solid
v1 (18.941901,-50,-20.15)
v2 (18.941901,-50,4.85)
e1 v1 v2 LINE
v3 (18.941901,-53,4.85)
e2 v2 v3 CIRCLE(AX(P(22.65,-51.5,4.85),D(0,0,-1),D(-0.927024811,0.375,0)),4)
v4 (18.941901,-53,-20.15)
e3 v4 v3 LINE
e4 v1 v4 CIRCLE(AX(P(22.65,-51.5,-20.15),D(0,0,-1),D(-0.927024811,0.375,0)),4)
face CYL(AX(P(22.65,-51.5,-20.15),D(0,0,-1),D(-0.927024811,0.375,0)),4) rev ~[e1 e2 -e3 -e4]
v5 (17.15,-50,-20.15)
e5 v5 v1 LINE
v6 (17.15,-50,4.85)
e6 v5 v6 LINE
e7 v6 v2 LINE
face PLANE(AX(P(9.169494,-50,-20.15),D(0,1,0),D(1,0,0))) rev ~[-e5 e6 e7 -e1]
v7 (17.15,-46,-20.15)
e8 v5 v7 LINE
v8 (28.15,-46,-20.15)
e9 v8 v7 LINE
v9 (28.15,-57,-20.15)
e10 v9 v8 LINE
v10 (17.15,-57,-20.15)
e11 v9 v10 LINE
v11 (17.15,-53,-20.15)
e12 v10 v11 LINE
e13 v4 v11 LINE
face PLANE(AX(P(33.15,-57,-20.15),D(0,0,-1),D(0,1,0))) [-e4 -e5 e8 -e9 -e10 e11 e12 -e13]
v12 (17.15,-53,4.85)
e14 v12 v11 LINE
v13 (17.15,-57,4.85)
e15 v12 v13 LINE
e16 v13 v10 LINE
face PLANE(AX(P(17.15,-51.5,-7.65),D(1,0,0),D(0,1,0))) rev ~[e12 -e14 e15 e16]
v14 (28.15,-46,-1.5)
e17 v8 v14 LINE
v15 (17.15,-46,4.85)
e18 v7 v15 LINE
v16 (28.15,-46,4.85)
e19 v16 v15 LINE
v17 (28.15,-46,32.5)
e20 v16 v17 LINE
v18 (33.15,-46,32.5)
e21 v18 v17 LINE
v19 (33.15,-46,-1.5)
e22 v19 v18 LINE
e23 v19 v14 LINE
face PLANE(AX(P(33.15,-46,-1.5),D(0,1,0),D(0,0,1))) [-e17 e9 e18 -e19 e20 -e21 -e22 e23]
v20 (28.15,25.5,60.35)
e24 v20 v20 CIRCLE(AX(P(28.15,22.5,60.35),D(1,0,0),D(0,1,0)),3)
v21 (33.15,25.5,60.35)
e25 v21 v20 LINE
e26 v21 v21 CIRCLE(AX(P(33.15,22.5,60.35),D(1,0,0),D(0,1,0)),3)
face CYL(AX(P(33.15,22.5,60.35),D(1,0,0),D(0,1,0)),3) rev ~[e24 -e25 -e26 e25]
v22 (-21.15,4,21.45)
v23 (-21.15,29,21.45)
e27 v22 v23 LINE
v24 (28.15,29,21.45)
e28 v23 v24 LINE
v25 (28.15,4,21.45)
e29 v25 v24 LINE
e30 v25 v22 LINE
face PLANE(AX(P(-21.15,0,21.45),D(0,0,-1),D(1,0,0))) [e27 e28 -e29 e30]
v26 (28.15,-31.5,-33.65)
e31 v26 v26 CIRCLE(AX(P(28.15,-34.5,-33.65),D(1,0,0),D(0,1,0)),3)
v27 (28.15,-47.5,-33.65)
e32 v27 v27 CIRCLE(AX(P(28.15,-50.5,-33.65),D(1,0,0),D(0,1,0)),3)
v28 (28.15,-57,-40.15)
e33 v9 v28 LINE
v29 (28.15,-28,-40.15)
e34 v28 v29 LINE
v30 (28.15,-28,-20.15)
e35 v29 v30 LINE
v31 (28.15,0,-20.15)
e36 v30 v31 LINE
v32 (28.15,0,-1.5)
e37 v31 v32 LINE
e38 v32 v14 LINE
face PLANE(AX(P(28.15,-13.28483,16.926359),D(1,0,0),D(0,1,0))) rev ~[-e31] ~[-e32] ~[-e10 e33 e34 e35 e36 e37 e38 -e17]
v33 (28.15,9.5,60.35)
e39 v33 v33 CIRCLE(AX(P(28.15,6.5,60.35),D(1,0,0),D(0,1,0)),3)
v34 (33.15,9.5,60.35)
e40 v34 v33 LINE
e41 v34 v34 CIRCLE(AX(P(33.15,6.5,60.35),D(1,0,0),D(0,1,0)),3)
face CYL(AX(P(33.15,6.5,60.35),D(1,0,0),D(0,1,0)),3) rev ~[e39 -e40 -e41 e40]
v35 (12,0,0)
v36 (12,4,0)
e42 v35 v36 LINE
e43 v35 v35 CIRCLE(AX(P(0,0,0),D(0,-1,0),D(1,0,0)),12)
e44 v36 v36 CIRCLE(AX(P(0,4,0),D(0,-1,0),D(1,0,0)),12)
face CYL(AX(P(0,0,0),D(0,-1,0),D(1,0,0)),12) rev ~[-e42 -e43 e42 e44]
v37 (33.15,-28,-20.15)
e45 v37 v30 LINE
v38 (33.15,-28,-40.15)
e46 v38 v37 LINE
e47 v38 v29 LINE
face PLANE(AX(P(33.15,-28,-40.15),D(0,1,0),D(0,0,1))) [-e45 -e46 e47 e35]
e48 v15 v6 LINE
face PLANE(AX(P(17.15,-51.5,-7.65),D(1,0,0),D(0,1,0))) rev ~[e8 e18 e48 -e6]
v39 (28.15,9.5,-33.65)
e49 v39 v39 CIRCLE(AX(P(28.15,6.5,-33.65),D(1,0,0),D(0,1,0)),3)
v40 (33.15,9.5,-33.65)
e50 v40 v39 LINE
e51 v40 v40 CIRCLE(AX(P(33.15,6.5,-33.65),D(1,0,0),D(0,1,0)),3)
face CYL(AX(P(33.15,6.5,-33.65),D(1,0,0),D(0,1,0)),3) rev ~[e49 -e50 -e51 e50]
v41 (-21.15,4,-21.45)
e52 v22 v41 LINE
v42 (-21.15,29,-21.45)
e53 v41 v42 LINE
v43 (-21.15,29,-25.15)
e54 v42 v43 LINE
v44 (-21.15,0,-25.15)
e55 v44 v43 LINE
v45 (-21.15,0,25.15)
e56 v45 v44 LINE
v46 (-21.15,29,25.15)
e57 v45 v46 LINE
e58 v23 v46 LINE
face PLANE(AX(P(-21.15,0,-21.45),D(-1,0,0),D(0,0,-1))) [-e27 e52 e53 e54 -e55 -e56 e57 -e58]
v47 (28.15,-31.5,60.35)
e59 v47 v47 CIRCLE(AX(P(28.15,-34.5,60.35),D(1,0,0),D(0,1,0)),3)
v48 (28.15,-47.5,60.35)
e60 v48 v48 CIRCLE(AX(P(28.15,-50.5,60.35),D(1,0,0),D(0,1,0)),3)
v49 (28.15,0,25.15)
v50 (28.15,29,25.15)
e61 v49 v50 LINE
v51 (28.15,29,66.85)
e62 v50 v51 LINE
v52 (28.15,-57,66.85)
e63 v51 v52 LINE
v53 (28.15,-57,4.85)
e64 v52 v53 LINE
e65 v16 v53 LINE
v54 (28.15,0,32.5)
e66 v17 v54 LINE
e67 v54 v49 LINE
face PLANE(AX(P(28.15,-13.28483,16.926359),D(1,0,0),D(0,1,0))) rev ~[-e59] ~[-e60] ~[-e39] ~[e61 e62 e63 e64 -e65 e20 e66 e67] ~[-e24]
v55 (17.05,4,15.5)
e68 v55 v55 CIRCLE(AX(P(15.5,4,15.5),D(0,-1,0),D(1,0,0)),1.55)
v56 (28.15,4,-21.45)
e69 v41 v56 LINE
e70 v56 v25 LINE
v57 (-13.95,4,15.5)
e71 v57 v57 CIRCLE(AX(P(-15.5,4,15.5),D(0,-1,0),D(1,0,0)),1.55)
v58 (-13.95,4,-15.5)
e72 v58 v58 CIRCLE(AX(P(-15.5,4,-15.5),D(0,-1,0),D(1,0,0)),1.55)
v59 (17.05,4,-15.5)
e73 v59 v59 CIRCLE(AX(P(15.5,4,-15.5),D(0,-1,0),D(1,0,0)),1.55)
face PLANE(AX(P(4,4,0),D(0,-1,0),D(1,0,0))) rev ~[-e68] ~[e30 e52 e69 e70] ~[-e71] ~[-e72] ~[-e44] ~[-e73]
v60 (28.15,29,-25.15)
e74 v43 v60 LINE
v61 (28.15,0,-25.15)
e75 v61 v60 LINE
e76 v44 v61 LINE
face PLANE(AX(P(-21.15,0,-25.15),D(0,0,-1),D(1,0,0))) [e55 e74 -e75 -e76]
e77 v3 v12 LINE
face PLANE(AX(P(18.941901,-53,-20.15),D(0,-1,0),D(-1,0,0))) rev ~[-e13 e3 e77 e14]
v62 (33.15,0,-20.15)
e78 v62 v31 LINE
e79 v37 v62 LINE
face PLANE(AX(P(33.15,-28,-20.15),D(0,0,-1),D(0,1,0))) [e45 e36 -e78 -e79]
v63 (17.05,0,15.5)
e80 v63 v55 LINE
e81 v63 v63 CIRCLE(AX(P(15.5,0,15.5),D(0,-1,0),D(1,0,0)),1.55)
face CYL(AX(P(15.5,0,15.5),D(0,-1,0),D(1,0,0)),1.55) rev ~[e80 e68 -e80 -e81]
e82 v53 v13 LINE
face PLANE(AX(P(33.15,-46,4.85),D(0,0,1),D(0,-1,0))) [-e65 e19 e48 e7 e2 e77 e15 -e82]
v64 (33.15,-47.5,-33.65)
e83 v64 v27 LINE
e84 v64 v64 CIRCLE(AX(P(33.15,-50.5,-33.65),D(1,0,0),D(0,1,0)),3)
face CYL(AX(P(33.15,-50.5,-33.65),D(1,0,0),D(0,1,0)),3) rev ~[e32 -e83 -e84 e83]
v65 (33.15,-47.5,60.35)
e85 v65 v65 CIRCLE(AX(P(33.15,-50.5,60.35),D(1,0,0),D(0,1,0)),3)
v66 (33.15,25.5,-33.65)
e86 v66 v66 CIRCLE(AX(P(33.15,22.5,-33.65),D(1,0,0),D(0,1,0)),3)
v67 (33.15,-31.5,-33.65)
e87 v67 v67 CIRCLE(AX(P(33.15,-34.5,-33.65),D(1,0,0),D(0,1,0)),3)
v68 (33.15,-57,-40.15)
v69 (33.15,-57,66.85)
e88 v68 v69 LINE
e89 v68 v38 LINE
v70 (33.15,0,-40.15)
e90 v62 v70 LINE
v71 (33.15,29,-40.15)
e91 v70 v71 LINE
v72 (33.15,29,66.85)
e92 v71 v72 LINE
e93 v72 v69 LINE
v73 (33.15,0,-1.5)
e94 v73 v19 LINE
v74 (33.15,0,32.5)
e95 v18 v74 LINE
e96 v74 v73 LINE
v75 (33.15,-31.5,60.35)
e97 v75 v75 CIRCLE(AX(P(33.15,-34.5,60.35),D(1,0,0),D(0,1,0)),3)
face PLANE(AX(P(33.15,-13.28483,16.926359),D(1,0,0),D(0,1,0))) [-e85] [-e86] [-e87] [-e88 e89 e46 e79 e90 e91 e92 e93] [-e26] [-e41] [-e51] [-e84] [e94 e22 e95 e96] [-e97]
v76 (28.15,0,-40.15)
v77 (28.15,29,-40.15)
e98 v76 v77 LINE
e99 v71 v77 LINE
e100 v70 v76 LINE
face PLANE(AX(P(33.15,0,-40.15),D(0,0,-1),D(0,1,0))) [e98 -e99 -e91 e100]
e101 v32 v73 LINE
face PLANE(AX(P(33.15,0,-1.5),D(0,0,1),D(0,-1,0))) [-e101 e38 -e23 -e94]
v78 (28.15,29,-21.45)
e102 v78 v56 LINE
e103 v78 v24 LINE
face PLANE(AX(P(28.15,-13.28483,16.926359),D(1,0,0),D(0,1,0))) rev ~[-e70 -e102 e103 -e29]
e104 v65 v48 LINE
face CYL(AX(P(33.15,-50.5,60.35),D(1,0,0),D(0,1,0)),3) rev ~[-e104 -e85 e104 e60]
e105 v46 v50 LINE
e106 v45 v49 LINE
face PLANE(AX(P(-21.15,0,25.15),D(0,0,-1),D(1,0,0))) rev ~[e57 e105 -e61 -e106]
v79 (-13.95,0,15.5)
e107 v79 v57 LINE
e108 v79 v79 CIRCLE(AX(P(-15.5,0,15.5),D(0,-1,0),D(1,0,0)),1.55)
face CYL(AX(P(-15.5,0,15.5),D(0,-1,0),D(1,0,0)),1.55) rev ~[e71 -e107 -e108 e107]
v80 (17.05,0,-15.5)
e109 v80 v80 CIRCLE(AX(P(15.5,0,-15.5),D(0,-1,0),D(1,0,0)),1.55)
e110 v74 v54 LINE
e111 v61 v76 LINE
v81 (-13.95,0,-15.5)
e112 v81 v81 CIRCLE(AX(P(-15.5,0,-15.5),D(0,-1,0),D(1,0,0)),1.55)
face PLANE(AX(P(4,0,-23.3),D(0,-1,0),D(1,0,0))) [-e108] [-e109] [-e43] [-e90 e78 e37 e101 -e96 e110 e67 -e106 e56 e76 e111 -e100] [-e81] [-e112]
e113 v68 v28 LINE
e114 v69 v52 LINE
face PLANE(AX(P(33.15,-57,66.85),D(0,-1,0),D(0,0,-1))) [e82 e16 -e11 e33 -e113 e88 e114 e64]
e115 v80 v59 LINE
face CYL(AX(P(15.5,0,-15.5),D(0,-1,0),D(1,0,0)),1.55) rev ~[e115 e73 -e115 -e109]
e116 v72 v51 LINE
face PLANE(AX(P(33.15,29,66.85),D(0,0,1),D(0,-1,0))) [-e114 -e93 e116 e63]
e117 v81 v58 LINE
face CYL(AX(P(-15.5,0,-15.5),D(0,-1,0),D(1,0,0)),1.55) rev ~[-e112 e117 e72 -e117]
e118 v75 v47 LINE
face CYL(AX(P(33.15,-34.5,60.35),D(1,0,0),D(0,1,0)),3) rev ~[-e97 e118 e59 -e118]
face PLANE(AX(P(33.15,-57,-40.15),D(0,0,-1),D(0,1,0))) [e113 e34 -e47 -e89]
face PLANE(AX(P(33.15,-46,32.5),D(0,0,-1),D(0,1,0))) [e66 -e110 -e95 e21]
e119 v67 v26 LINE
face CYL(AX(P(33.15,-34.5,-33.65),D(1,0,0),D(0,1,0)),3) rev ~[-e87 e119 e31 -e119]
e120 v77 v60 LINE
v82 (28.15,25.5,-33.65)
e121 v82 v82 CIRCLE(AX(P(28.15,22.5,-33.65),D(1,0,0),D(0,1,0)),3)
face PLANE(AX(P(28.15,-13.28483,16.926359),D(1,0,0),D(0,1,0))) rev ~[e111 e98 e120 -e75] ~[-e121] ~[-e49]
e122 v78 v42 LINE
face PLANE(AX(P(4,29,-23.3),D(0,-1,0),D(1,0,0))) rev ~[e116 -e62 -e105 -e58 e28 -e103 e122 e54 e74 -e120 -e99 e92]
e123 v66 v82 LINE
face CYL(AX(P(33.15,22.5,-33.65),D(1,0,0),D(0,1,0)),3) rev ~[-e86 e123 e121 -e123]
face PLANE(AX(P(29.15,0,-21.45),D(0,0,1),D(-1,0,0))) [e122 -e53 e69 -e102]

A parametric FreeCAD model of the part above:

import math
import FreeCAD as App
import Part
import Sketcher

V = App.Vector
Q = App.Units.Quantity


def add_polygon(sketch, points):
    """Adds a closed chain of lines whose ends are joined by coincident constraints."""
    first, n = sketch.GeometryCount, len(points)
    for a, b in zip(points, points[1:] + points[:1]):
        sketch.addGeometry(Part.LineSegment(App.Vector(*a, 0), App.Vector(*b, 0)), False)
    for i in range(n):
        sketch.addConstraint(Sketcher.Constraint("Coincident", first + i, 2, first + (i + 1) % n, 1))

doc = App.newDocument("Part")
params = doc.addObject("Spreadsheet::Sheet", "Params")
for row, (alias, value) in enumerate([
    ("sketch1_diameter", "24 mm"),
    ("sketch1_diameter2", "3.1 mm"),
    ("sketch1_width", "50.3 mm"),
    ("sketch1_height", "42.9 mm"),
    ("pad1_length", "4 mm"),
    ("sketch2_diameter", "6 mm"),
    ("sketch2_width", "86 mm"),
    ("sketch2_width2", "29 mm"),
    ("sketch2_width3", "46 mm"),
    ("sketch2_height", "107 mm"),
    ("pad2_length", "5 mm"),
    ("sketch3_width", "11 mm"),
    ("sketch3_height", "25 mm"),
    ("pad3_length", "16 mm"),
    ("sketch4_width", "50.3 mm"),
    ("sketch4_height", "3.7 mm"),
    ("pad4_length", "29 mm"),
    ("sketch5_radius", "4 mm"),
    ("sketch5_height", "3 mm"),
], start=1):
    params.set(f"A{row}", alias)
    params.set(f"B{row}", "=" + value)
    params.setAlias(f"B{row}", alias)

body = doc.addObject("PartDesign::Body", "Body")

sketch1 = doc.addObject("Sketcher::SketchObject", "Sketch")
body.addObject(sketch1)
sketch1.AttachmentSupport = (doc.XZ_Plane, [""])
sketch1.MapMode = "FlatFace"
add_polygon(sketch1, [(29.1, -21.4), (29.1, 21.4), (-21.1, 21.4), (-21.1, -21.4)])
sketch1.addGeometry(Part.Circle(V(-15.5, -15.5, 0), V(0, 0, 1), 1.6), False)
sketch1.addGeometry(Part.Circle(V(15.5, -15.5, 0), V(0, 0, 1), 1.6), False)
sketch1.addGeometry(Part.Circle(V(-15.5, 15.5, 0), V(0, 0, 1), 1.6), False)
sketch1.addGeometry(Part.Circle(V(0, 0, 0), V(0, 0, 1), 12), False)
sketch1.addGeometry(Part.Circle(V(15.5, 15.5, 0), V(0, 0, 1), 1.6), False)
sketch1.addConstraint(Sketcher.Constraint("Vertical", 0))
sketch1.addConstraint(Sketcher.Constraint("Horizontal", 1))
sketch1.addConstraint(Sketcher.Constraint("Vertical", 2))
sketch1.addConstraint(Sketcher.Constraint("Horizontal", 3))
sketch1.addConstraint(Sketcher.Constraint("Coincident", 7, 3, -1, 1))
sketch1.addConstraint(Sketcher.Constraint("Equal", 4, 5))
sketch1.addConstraint(Sketcher.Constraint("Equal", 5, 6))
sketch1.addConstraint(Sketcher.Constraint("Equal", 6, 8))
sketch1.addConstraint(Sketcher.Constraint("Symmetric", 5, 3, 6, 3, -1, 1))
sketch1.addConstraint(Sketcher.Constraint("Symmetric", 4, 3, 8, 3, -1, 1))
sketch1.addConstraint(Sketcher.Constraint("Symmetric", 4, 3, 5, 3, -2))
sketch1.addConstraint(Sketcher.Constraint("Diameter", 7, Q("24 mm")))
sketch1.addConstraint(Sketcher.Constraint("Diameter", 4, Q("3.1 mm")))
sketch1.addConstraint(Sketcher.Constraint("DistanceX", 1, 2, 1, 1, Q("50.3 mm")))
sketch1.addConstraint(Sketcher.Constraint("DistanceY", 0, 1, 0, 2, Q("42.9 mm")))
sketch1.addConstraint(Sketcher.Constraint("DistanceX", 4, 3, 5, 3, Q("31 mm")))
sketch1.addConstraint(Sketcher.Constraint("DistanceY", 4, 3, 6, 3, Q("31 mm")))
sketch1.addConstraint(Sketcher.Constraint("DistanceX", -1, 1, 0, 2, Q("29.15 mm")))
sketch1.addConstraint(Sketcher.Constraint("DistanceY", -1, 1, 0, 2, Q("21.45 mm")))
sketch1.setExpression("Constraints[15]", "Params.sketch1_diameter")
sketch1.setExpression("Constraints[16]", "Params.sketch1_diameter2")
sketch1.setExpression("Constraints[17]", "Params.sketch1_width")
sketch1.setExpression("Constraints[18]", "Params.sketch1_height")
pad1 = doc.addObject("PartDesign::Pad", "Pad")
body.addObject(pad1)
pad1.Profile = sketch1
pad1.setExpression("Length", "Params.pad1_length")
pad1.Reversed = True
body2 = doc.addObject("PartDesign::Body", "Body001")

sketch2 = doc.addObject("Sketcher::SketchObject", "Sketch001")
body2.addObject(sketch2)
sketch2.AttachmentSupport = (doc.getObject("YZ_Plane001"), [""])
sketch2.MapMode = "FlatFace"
add_polygon(sketch2, [(29, 66.8), (-57, 66.8), (-57, -40.1), (-28, -40.1), (-28, -20.1), (0, -20.1), (0, -40.1), (29, -40.1)])
sketch2.addGeometry(Part.Circle(V(-50.5, -33.6, 0), V(0, 0, 1), 3), False)
sketch2.addGeometry(Part.Circle(V(-34.5, -33.6, 0), V(0, 0, 1), 3), False)
sketch2.addGeometry(Part.Circle(V(6.5, -33.6, 0), V(0, 0, 1), 3), False)
sketch2.addGeometry(Part.Circle(V(22.5, -33.6, 0), V(0, 0, 1), 3), False)
add_polygon(sketch2, [(-46, 32.5), (0, 32.5), (0, -1.5), (-46, -1.5)])
sketch2.addGeometry(Part.Circle(V(-50.5, 60.4, 0), V(0, 0, 1), 3), False)
sketch2.addGeometry(Part.Circle(V(-34.5, 60.4, 0), V(0, 0, 1), 3), False)
sketch2.addGeometry(Part.Circle(V(6.5, 60.4, 0), V(0, 0, 1), 3), False)
sketch2.addGeometry(Part.Circle(V(22.5, 60.4, 0), V(0, 0, 1), 3), False)
sketch2.addConstraint(Sketcher.Constraint("Horizontal", 0))
sketch2.addConstraint(Sketcher.Constraint("Vertical", 1))
sketch2.addConstraint(Sketcher.Constraint("Horizontal", 2))
sketch2.addConstraint(Sketcher.Constraint("Vertical", 3))
sketch2.addConstraint(Sketcher.Constraint("Horizontal", 4))
sketch2.addConstraint(Sketcher.Constraint("Vertical", 5))
sketch2.addConstraint(Sketcher.Constraint("Horizontal", 6))
sketch2.addConstraint(Sketcher.Constraint("Vertical", 7))
sketch2.addConstraint(Sketcher.Constraint("Horizontal", 12))
sketch2.addConstraint(Sketcher.Constraint("Vertical", 13))
sketch2.addConstraint(Sketcher.Constraint("Horizontal", 14))
sketch2.addConstraint(Sketcher.Constraint("Vertical", 15))
sketch2.addConstraint(Sketcher.Constraint("Equal", 8, 9))
sketch2.addConstraint(Sketcher.Constraint("Equal", 9, 10))
sketch2.addConstraint(Sketcher.Constraint("Equal", 10, 11))
sketch2.addConstraint(Sketcher.Constraint("Equal", 11, 16))
sketch2.addConstraint(Sketcher.Constraint("Equal", 16, 17))
sketch2.addConstraint(Sketcher.Constraint("Equal", 17, 18))
sketch2.addConstraint(Sketcher.Constraint("Equal", 18, 19))
sketch2.addConstraint(Sketcher.Constraint("PointOnObject", 4, 2, -2))
sketch2.addConstraint(Sketcher.Constraint("PointOnObject", 12, 2, -2))
sketch2.addConstraint(Sketcher.Constraint("Horizontal", 8, 3, 9, 3))
sketch2.addConstraint(Sketcher.Constraint("Horizontal", 9, 3, 10, 3))
sketch2.addConstraint(Sketcher.Constraint("Horizontal", 10, 3, 11, 3))
sketch2.addConstraint(Sketcher.Constraint("Horizontal", 16, 3, 17, 3))
sketch2.addConstraint(Sketcher.Constraint("Horizontal", 17, 3, 18, 3))
sketch2.addConstraint(Sketcher.Constraint("Horizontal", 18, 3, 19, 3))
sketch2.addConstraint(Sketcher.Constraint("Horizontal", 2, 2, 5, 2))
sketch2.addConstraint(Sketcher.Constraint("Vertical", 8, 3, 16, 3))
sketch2.addConstraint(Sketcher.Constraint("Vertical", 9, 3, 17, 3))
sketch2.addConstraint(Sketcher.Constraint("Vertical", 10, 3, 18, 3))
sketch2.addConstraint(Sketcher.Constraint("Vertical", 11, 3, 19, 3))
sketch2.addConstraint(Sketcher.Constraint("Equal", 2, 6))
sketch2.addConstraint(Sketcher.Constraint("Diameter", 8, Q("6 mm")))
sketch2.addConstraint(Sketcher.Constraint("DistanceX", 0, 2, 0, 1, Q("86 mm")))
sketch2.addConstraint(Sketcher.Constraint("DistanceX", 2, 1, 2, 2, Q("29 mm")))
sketch2.addConstraint(Sketcher.Constraint("DistanceX", 12, 1, 12, 2, Q("46 mm")))
sketch2.addConstraint(Sketcher.Constraint("DistanceY", 1, 2, 1, 1, Q("107 mm")))
sketch2.addConstraint(Sketcher.Constraint("DistanceY", 3, 1, 3, 2, Q("20 mm")))
sketch2.addConstraint(Sketcher.Constraint("DistanceY", 13, 2, 13, 1, Q("34 mm")))
sketch2.addConstraint(Sketcher.Constraint("DistanceX", 8, 3, 9, 3, Q("16 mm")))
sketch2.addConstraint(Sketcher.Constraint("DistanceX", 9, 3, 10, 3, Q("41 mm")))
sketch2.addConstraint(Sketcher.Constraint("DistanceX", 10, 3, 11, 3, Q("16 mm")))
sketch2.addConstraint(Sketcher.Constraint("DistanceY", 8, 3, 16, 3, Q("94 mm")))
sketch2.addConstraint(Sketcher.Constraint("DistanceX", 8, 3, -1, 1, Q("50.5 mm")))
sketch2.addConstraint(Sketcher.Constraint("DistanceY", -1, 1, 12, 2, Q("32.5 mm")))
sketch2.addConstraint(Sketcher.Constraint("DistanceY", 16, 3, 0, 2, Q("6.5 mm")))
sketch2.addConstraint(Sketcher.Constraint("DistanceY", 8, 3, -1, 1, Q("33.65 mm")))
sketch2.setExpression("Constraints[45]", "Params.sketch2_diameter")
sketch2.setExpression("Constraints[46]", "Params.sketch2_width")
sketch2.setExpression("Constraints[47]", "Params.sketch2_width2")
sketch2.setExpression("Constraints[48]", "Params.sketch2_width3")
sketch2.setExpression("Constraints[49]", "Params.sketch2_height")
pad2 = doc.addObject("PartDesign::Pad", "Pad001")
body2.addObject(pad2)
pad2.Profile = sketch2
pad2.setExpression("Length", "Params.pad2_length")
pad2.Reversed = True

sketch3 = doc.addObject("Sketcher::SketchObject", "Sketch002")
body2.addObject(sketch3)
sketch3.AttachmentSupport = (doc.getObject("YZ_Plane001"), [""])
sketch3.MapMode = "FlatFace"
add_polygon(sketch3, [(-46, 5), (-57, 5), (-57, -20), (-46, -20)])
sketch3.addConstraint(Sketcher.Constraint("Horizontal", 0))
sketch3.addConstraint(Sketcher.Constraint("Vertical", 1))
sketch3.addConstraint(Sketcher.Constraint("Horizontal", 2))
sketch3.addConstraint(Sketcher.Constraint("Vertical", 3))
sketch3.addConstraint(Sketcher.Constraint("DistanceX", 0, 2, 0, 1, Q("11 mm")))
sketch3.addConstraint(Sketcher.Constraint("DistanceY", 1, 2, 1, 1, Q("25 mm")))
sketch3.addConstraint(Sketcher.Constraint("DistanceX", 0, 2, -1, 1, Q("57 mm")))
sketch3.addConstraint(Sketcher.Constraint("DistanceY", -1, 1, 0, 2, Q("4.85 mm")))
sketch3.setExpression("Constraints[8]", "Params.sketch3_width")
sketch3.setExpression("Constraints[9]", "Params.sketch3_height")
pad3 = doc.addObject("PartDesign::Pad", "Pad002")
body2.addObject(pad3)
pad3.Profile = sketch3
pad3.setExpression("Length", "Params.pad3_length")
pad3.Reversed = True
body3 = doc.addObject("PartDesign::Body", "Body002")
doc.recompute()

body2.Placement = App.Placement(V(33.15, 0, 0), App.Rotation(V(0, 0, 1), 0))
boolean = doc.addObject("PartDesign::Boolean", "Boolean")
body3.addObject(boolean)
boolean.Type = "Fuse"
boolean.addObjects([body2])
doc.recompute()

boolean2 = doc.addObject("PartDesign::Boolean", "Boolean001")
body.addObject(boolean2)
boolean2.Type = "Fuse"
boolean2.addObjects([body3])

sketch4 = doc.addObject("Sketcher::SketchObject", "Sketch003")
body.addObject(sketch4)
sketch4.AttachmentSupport = (doc.XZ_Plane, [""])
sketch4.MapMode = "FlatFace"
add_polygon(sketch4, [(-21.1, -25.1), (29.1, -25.1), (29.1, -21.4), (-21.1, -21.4)])
add_polygon(sketch4, [(-21.1, 25.1), (-21.1, 21.4), (29.1, 21.4), (29.1, 25.1)])
sketch4.addConstraint(Sketcher.Constraint("Horizontal", 0))
sketch4.addConstraint(Sketcher.Constraint("Vertical", 1))
sketch4.addConstraint(Sketcher.Constraint("Horizontal", 2))
sketch4.addConstraint(Sketcher.Constraint("Vertical", 3))
sketch4.addConstraint(Sketcher.Constraint("Vertical", 4))
sketch4.addConstraint(Sketcher.Constraint("Horizontal", 5))
sketch4.addConstraint(Sketcher.Constraint("Vertical", 6))
sketch4.addConstraint(Sketcher.Constraint("Horizontal", 7))
sketch4.addConstraint(Sketcher.Constraint("Symmetric", 2, 2, 4, 2, -1))
sketch4.addConstraint(Sketcher.Constraint("Symmetric", 0, 2, 6, 2, -1))
sketch4.addConstraint(Sketcher.Constraint("DistanceX", 0, 1, 0, 2, Q("50.3 mm")))
sketch4.addConstraint(Sketcher.Constraint("DistanceY", 1, 1, 1, 2, Q("3.7 mm")))
sketch4.addConstraint(Sketcher.Constraint("DistanceY", 2, 2, 4, 2, Q("42.9 mm")))
sketch4.addConstraint(Sketcher.Constraint("DistanceX", -1, 1, 0, 2, Q("29.15 mm")))
sketch4.setExpression("Constraints[18]", "Params.sketch4_width")
sketch4.setExpression("Constraints[19]", "Params.sketch4_height")
pad4 = doc.addObject("PartDesign::Pad", "Pad003")
body.addObject(pad4)
pad4.Profile = sketch4
pad4.setExpression("Length", "Params.pad4_length")
pad4.Reversed = True

sketch5 = doc.addObject("Sketcher::SketchObject", "Sketch004")
body.addObject(sketch5)
sketch5.AttachmentSupport = (doc.XY_Plane, [""])
sketch5.MapMode = "FlatFace"
sketch5.AttachmentOffset = App.Placement(V(0, 0, -20.15), App.Rotation())
sketch5.addGeometry(Part.LineSegment(V(9.2, -50, 0), V(18.9, -50, 0)), False)
sketch5.addGeometry(Part.ArcOfCircle(Part.Circle(V(22.6, -51.5, 0), V(0, 0, 1), 4), math.radians(-158), math.radians(158)), False)
sketch5.addGeometry(Part.LineSegment(V(18.9, -53, 0), V(9.2, -53, 0)), False)
sketch5.addGeometry(Part.LineSegment(V(9.2, -53, 0), V(9.2, -50, 0)), False)
sketch5.addConstraint(Sketcher.Constraint("Coincident", 0, 2, 1, 2))
sketch5.addConstraint(Sketcher.Constraint("Coincident", 1, 1, 2, 1))
sketch5.addConstraint(Sketcher.Constraint("Coincident", 2, 2, 3, 1))
sketch5.addConstraint(Sketcher.Constraint("Coincident", 3, 2, 0, 1))
sketch5.addConstraint(Sketcher.Constraint("Horizontal", 0))
sketch5.addConstraint(Sketcher.Constraint("Horizontal", 2))
sketch5.addConstraint(Sketcher.Constraint("Vertical", 3))
sketch5.addConstraint(Sketcher.Constraint("Vertical", 0, 2, 1, 1))
sketch5.addConstraint(Sketcher.Constraint("Radius", 1, Q("4 mm")))
sketch5.addConstraint(Sketcher.Constraint("DistanceY", 3, 1, 3, 2, Q("3 mm")))
sketch5.addConstraint(Sketcher.Constraint("DistanceY", 0, 2, -1, 1, Q("50 mm")))
sketch5.addConstraint(Sketcher.Constraint("DistanceX", -1, 1, 1, 3, Q("22.65 mm")))
sketch5.addConstraint(Sketcher.Constraint("DistanceX", 0, 1, 0, 2, Q("9.772407 mm")))
sketch5.setExpression("Constraints[8]", "Params.sketch5_radius")
sketch5.setExpression("Constraints[9]", "Params.sketch5_height")
pocket1 = doc.addObject("PartDesign::Pocket", "Pocket")
body.addObject(pocket1)
pocket1.Profile = sketch5
pocket1.Type = "ThroughAll"
pocket1.Reversed = True

doc.recompute()
